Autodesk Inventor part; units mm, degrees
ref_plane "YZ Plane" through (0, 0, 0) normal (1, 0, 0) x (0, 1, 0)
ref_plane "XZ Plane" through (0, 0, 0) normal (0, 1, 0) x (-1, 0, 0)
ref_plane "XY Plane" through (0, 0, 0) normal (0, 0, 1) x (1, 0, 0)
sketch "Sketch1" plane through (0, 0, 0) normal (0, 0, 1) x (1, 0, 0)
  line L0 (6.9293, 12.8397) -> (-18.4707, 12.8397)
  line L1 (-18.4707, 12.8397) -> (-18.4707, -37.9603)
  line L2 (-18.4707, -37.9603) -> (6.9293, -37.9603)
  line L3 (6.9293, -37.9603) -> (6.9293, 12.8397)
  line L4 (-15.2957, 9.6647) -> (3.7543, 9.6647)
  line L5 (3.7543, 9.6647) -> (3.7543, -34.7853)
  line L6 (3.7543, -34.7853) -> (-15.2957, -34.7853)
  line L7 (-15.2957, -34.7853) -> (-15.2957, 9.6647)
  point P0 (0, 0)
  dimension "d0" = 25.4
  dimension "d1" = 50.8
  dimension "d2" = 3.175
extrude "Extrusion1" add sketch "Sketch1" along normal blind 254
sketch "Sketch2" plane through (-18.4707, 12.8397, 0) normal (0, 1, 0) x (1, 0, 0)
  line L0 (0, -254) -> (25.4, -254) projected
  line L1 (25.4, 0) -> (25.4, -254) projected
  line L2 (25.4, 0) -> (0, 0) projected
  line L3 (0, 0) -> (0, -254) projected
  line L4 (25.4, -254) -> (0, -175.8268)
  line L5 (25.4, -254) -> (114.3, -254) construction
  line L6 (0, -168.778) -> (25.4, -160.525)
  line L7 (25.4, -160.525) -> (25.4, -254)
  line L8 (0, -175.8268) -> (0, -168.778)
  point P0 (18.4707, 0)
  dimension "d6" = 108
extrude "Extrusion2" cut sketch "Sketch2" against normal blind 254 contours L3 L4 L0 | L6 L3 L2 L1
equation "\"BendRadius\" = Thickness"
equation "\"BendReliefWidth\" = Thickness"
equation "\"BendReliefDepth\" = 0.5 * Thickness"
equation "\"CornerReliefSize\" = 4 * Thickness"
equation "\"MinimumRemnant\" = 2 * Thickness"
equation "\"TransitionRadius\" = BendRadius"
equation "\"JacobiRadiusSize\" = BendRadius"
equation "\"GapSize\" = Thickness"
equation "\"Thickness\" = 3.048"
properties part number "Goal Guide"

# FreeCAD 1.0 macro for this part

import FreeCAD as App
import Part
import Sketcher
from FreeCAD import Vector
Q = App.Units.Quantity

doc = App.newDocument("Part")
body = doc.addObject("PartDesign::Body", "Body")

# Sketch on XY plane
sketch1 = body.newObject("Sketcher::SketchObject", "Sketch")
sketch1.AttachmentSupport = (doc.getObject("XY_Plane"), [""])
sketch1.MapMode = "FlatFace"
sketch1.addGeometry([
    Part.LineSegment(Vector(6.9293, -37.9603, 0), Vector(6.9293, 12.8397, 0)),  # 0
    Part.LineSegment(Vector(6.9293, 12.8397, 0), Vector(-18.4707, 12.8397, 0)),  # 1
    Part.LineSegment(Vector(-18.4707, 12.8397, 0), Vector(-18.4707, -37.9603, 0)),  # 2
    Part.LineSegment(Vector(-18.4707, -37.9603, 0), Vector(6.9293, -37.9603, 0)),  # 3
    Part.LineSegment(Vector(-15.2957, -34.7853, 0), Vector(-15.2957, 9.6647, 0)),  # 4
    Part.LineSegment(Vector(-15.2957, 9.6647, 0), Vector(3.7543, 9.6647, 0)),  # 5
    Part.LineSegment(Vector(3.7543, 9.6647, 0), Vector(3.7543, -34.7853, 0)),  # 6
    Part.LineSegment(Vector(3.7543, -34.7853, 0), Vector(-15.2957, -34.7853, 0)),  # 7
], False)
sketch1.addConstraint([
    Sketcher.Constraint("Coincident", 0, 2, 1, 1),
    Sketcher.Constraint("Coincident", 1, 2, 2, 1),
    Sketcher.Constraint("Coincident", 2, 2, 3, 1),
    Sketcher.Constraint("Coincident", 3, 2, 0, 1),
    Sketcher.Constraint("Coincident", 4, 2, 5, 1),
    Sketcher.Constraint("Coincident", 5, 2, 6, 1),
    Sketcher.Constraint("Coincident", 6, 2, 7, 1),
    Sketcher.Constraint("Coincident", 7, 2, 4, 1),
    Sketcher.Constraint("Vertical", 0),
    Sketcher.Constraint("Horizontal", 1),
    Sketcher.Constraint("Vertical", 2),
    Sketcher.Constraint("Horizontal", 3),
    Sketcher.Constraint("Vertical", 4),
    Sketcher.Constraint("Horizontal", 5),
    Sketcher.Constraint("Vertical", 6),
    Sketcher.Constraint("Horizontal", 7),
    Sketcher.Constraint("DistanceX", 1, 2, 1, 1, Q("1 in")),
    Sketcher.Constraint("DistanceY", 0, 1, 0, 2, Q("2 in")),
    Sketcher.Constraint("DistanceX", 1, 2, 4, 2, Q("0.125 in")),
    Sketcher.Constraint("DistanceY", 4, 2, 1, 2, Q("0.125 in")),
    Sketcher.Constraint("DistanceX", 5, 2, 0, 2, Q("0.125 in")),
    Sketcher.Constraint("DistanceY", 3, 2, 6, 2, Q("0.125 in")),
    Sketcher.Constraint("DistanceX", -1, 1, 0, 2, Q("0.2728 in")),
    Sketcher.Constraint("DistanceY", -1, 1, 0, 2, Q("0.5055 in")),
])
pad1 = body.newObject("PartDesign::Pad", "Pad")
pad1.Profile = sketch1
pad1.Length = Q("10 in")

# Sketch on XZ plane
sketch2 = body.newObject("Sketcher::SketchObject", "Sketch001")
sketch2.AttachmentSupport = (doc.getObject("XZ_Plane"), [""])
sketch2.MapMode = "FlatFace"
sketch2.AttachmentOffset = App.Placement(Vector(0, 0, -0.5055 * 25.4), App.Rotation())
sketch2.addGeometry([
    Part.LineSegment(Vector(-18.4707, 175.8268, 0), Vector(-18.4707, 254, 0)),  # 0
    Part.LineSegment(Vector(-18.4707, 254, 0), Vector(6.9293, 254, 0)),  # 1
    Part.LineSegment(Vector(6.9293, 254, 0), Vector(-18.4707, 175.8268, 0)),  # 2
    Part.LineSegment(Vector(-18.4707, 168.778, 0), Vector(6.9293, 160.525, 0)),  # 3
    Part.LineSegment(Vector(6.9293, 160.525, 0), Vector(6.9293, 0, 0)),  # 4
    Part.LineSegment(Vector(6.9293, 0, 0), Vector(-18.4707, 0, 0)),  # 5
    Part.LineSegment(Vector(-18.4707, 0, 0), Vector(-18.4707, 168.778, 0)),  # 6
], False)
sketch2.addConstraint([
    Sketcher.Constraint("Coincident", 0, 2, 1, 1),
    Sketcher.Constraint("Coincident", 1, 2, 2, 1),
    Sketcher.Constraint("Coincident", 2, 2, 0, 1),
    Sketcher.Constraint("Coincident", 3, 2, 4, 1),
    Sketcher.Constraint("Coincident", 4, 2, 5, 1),
    Sketcher.Constraint("Coincident", 5, 2, 6, 1),
    Sketcher.Constraint("Coincident", 6, 2, 3, 1),
    Sketcher.Constraint("Vertical", 0),
    Sketcher.Constraint("Horizontal", 1),
    Sketcher.Constraint("Vertical", 4),
    Sketcher.Constraint("Horizontal", 5),
    Sketcher.Constraint("Vertical", 6),
    Sketcher.Constraint("PointOnObject", 4, 2, -1),
    Sketcher.Constraint("Perpendicular", 2, 3),
    Sketcher.Constraint("Vertical", 1, 2, 3, 2),
    Sketcher.Constraint("Vertical", 2, 2, 5, 2),
    Sketcher.Constraint("Angle", 2, Q("-108 deg")),
    Sketcher.Constraint("DistanceX", 1, 1, 1, 2, Q("1 in")),
    Sketcher.Constraint("DistanceY", -1, 1, 0, 2, Q("10 in")),
    Sketcher.Constraint("DistanceY", 6, 1, 6, 2, Q("6.6448 in")),
    Sketcher.Constraint("DistanceX", 0, 2, -1, 1, Q("0.7272 in")),
])
pocket1 = body.newObject("PartDesign::Pocket", "Pocket")
pocket1.Profile = sketch2
pocket1.Length = Q("10 in")
pocket1.Reversed = True

doc.recompute()
